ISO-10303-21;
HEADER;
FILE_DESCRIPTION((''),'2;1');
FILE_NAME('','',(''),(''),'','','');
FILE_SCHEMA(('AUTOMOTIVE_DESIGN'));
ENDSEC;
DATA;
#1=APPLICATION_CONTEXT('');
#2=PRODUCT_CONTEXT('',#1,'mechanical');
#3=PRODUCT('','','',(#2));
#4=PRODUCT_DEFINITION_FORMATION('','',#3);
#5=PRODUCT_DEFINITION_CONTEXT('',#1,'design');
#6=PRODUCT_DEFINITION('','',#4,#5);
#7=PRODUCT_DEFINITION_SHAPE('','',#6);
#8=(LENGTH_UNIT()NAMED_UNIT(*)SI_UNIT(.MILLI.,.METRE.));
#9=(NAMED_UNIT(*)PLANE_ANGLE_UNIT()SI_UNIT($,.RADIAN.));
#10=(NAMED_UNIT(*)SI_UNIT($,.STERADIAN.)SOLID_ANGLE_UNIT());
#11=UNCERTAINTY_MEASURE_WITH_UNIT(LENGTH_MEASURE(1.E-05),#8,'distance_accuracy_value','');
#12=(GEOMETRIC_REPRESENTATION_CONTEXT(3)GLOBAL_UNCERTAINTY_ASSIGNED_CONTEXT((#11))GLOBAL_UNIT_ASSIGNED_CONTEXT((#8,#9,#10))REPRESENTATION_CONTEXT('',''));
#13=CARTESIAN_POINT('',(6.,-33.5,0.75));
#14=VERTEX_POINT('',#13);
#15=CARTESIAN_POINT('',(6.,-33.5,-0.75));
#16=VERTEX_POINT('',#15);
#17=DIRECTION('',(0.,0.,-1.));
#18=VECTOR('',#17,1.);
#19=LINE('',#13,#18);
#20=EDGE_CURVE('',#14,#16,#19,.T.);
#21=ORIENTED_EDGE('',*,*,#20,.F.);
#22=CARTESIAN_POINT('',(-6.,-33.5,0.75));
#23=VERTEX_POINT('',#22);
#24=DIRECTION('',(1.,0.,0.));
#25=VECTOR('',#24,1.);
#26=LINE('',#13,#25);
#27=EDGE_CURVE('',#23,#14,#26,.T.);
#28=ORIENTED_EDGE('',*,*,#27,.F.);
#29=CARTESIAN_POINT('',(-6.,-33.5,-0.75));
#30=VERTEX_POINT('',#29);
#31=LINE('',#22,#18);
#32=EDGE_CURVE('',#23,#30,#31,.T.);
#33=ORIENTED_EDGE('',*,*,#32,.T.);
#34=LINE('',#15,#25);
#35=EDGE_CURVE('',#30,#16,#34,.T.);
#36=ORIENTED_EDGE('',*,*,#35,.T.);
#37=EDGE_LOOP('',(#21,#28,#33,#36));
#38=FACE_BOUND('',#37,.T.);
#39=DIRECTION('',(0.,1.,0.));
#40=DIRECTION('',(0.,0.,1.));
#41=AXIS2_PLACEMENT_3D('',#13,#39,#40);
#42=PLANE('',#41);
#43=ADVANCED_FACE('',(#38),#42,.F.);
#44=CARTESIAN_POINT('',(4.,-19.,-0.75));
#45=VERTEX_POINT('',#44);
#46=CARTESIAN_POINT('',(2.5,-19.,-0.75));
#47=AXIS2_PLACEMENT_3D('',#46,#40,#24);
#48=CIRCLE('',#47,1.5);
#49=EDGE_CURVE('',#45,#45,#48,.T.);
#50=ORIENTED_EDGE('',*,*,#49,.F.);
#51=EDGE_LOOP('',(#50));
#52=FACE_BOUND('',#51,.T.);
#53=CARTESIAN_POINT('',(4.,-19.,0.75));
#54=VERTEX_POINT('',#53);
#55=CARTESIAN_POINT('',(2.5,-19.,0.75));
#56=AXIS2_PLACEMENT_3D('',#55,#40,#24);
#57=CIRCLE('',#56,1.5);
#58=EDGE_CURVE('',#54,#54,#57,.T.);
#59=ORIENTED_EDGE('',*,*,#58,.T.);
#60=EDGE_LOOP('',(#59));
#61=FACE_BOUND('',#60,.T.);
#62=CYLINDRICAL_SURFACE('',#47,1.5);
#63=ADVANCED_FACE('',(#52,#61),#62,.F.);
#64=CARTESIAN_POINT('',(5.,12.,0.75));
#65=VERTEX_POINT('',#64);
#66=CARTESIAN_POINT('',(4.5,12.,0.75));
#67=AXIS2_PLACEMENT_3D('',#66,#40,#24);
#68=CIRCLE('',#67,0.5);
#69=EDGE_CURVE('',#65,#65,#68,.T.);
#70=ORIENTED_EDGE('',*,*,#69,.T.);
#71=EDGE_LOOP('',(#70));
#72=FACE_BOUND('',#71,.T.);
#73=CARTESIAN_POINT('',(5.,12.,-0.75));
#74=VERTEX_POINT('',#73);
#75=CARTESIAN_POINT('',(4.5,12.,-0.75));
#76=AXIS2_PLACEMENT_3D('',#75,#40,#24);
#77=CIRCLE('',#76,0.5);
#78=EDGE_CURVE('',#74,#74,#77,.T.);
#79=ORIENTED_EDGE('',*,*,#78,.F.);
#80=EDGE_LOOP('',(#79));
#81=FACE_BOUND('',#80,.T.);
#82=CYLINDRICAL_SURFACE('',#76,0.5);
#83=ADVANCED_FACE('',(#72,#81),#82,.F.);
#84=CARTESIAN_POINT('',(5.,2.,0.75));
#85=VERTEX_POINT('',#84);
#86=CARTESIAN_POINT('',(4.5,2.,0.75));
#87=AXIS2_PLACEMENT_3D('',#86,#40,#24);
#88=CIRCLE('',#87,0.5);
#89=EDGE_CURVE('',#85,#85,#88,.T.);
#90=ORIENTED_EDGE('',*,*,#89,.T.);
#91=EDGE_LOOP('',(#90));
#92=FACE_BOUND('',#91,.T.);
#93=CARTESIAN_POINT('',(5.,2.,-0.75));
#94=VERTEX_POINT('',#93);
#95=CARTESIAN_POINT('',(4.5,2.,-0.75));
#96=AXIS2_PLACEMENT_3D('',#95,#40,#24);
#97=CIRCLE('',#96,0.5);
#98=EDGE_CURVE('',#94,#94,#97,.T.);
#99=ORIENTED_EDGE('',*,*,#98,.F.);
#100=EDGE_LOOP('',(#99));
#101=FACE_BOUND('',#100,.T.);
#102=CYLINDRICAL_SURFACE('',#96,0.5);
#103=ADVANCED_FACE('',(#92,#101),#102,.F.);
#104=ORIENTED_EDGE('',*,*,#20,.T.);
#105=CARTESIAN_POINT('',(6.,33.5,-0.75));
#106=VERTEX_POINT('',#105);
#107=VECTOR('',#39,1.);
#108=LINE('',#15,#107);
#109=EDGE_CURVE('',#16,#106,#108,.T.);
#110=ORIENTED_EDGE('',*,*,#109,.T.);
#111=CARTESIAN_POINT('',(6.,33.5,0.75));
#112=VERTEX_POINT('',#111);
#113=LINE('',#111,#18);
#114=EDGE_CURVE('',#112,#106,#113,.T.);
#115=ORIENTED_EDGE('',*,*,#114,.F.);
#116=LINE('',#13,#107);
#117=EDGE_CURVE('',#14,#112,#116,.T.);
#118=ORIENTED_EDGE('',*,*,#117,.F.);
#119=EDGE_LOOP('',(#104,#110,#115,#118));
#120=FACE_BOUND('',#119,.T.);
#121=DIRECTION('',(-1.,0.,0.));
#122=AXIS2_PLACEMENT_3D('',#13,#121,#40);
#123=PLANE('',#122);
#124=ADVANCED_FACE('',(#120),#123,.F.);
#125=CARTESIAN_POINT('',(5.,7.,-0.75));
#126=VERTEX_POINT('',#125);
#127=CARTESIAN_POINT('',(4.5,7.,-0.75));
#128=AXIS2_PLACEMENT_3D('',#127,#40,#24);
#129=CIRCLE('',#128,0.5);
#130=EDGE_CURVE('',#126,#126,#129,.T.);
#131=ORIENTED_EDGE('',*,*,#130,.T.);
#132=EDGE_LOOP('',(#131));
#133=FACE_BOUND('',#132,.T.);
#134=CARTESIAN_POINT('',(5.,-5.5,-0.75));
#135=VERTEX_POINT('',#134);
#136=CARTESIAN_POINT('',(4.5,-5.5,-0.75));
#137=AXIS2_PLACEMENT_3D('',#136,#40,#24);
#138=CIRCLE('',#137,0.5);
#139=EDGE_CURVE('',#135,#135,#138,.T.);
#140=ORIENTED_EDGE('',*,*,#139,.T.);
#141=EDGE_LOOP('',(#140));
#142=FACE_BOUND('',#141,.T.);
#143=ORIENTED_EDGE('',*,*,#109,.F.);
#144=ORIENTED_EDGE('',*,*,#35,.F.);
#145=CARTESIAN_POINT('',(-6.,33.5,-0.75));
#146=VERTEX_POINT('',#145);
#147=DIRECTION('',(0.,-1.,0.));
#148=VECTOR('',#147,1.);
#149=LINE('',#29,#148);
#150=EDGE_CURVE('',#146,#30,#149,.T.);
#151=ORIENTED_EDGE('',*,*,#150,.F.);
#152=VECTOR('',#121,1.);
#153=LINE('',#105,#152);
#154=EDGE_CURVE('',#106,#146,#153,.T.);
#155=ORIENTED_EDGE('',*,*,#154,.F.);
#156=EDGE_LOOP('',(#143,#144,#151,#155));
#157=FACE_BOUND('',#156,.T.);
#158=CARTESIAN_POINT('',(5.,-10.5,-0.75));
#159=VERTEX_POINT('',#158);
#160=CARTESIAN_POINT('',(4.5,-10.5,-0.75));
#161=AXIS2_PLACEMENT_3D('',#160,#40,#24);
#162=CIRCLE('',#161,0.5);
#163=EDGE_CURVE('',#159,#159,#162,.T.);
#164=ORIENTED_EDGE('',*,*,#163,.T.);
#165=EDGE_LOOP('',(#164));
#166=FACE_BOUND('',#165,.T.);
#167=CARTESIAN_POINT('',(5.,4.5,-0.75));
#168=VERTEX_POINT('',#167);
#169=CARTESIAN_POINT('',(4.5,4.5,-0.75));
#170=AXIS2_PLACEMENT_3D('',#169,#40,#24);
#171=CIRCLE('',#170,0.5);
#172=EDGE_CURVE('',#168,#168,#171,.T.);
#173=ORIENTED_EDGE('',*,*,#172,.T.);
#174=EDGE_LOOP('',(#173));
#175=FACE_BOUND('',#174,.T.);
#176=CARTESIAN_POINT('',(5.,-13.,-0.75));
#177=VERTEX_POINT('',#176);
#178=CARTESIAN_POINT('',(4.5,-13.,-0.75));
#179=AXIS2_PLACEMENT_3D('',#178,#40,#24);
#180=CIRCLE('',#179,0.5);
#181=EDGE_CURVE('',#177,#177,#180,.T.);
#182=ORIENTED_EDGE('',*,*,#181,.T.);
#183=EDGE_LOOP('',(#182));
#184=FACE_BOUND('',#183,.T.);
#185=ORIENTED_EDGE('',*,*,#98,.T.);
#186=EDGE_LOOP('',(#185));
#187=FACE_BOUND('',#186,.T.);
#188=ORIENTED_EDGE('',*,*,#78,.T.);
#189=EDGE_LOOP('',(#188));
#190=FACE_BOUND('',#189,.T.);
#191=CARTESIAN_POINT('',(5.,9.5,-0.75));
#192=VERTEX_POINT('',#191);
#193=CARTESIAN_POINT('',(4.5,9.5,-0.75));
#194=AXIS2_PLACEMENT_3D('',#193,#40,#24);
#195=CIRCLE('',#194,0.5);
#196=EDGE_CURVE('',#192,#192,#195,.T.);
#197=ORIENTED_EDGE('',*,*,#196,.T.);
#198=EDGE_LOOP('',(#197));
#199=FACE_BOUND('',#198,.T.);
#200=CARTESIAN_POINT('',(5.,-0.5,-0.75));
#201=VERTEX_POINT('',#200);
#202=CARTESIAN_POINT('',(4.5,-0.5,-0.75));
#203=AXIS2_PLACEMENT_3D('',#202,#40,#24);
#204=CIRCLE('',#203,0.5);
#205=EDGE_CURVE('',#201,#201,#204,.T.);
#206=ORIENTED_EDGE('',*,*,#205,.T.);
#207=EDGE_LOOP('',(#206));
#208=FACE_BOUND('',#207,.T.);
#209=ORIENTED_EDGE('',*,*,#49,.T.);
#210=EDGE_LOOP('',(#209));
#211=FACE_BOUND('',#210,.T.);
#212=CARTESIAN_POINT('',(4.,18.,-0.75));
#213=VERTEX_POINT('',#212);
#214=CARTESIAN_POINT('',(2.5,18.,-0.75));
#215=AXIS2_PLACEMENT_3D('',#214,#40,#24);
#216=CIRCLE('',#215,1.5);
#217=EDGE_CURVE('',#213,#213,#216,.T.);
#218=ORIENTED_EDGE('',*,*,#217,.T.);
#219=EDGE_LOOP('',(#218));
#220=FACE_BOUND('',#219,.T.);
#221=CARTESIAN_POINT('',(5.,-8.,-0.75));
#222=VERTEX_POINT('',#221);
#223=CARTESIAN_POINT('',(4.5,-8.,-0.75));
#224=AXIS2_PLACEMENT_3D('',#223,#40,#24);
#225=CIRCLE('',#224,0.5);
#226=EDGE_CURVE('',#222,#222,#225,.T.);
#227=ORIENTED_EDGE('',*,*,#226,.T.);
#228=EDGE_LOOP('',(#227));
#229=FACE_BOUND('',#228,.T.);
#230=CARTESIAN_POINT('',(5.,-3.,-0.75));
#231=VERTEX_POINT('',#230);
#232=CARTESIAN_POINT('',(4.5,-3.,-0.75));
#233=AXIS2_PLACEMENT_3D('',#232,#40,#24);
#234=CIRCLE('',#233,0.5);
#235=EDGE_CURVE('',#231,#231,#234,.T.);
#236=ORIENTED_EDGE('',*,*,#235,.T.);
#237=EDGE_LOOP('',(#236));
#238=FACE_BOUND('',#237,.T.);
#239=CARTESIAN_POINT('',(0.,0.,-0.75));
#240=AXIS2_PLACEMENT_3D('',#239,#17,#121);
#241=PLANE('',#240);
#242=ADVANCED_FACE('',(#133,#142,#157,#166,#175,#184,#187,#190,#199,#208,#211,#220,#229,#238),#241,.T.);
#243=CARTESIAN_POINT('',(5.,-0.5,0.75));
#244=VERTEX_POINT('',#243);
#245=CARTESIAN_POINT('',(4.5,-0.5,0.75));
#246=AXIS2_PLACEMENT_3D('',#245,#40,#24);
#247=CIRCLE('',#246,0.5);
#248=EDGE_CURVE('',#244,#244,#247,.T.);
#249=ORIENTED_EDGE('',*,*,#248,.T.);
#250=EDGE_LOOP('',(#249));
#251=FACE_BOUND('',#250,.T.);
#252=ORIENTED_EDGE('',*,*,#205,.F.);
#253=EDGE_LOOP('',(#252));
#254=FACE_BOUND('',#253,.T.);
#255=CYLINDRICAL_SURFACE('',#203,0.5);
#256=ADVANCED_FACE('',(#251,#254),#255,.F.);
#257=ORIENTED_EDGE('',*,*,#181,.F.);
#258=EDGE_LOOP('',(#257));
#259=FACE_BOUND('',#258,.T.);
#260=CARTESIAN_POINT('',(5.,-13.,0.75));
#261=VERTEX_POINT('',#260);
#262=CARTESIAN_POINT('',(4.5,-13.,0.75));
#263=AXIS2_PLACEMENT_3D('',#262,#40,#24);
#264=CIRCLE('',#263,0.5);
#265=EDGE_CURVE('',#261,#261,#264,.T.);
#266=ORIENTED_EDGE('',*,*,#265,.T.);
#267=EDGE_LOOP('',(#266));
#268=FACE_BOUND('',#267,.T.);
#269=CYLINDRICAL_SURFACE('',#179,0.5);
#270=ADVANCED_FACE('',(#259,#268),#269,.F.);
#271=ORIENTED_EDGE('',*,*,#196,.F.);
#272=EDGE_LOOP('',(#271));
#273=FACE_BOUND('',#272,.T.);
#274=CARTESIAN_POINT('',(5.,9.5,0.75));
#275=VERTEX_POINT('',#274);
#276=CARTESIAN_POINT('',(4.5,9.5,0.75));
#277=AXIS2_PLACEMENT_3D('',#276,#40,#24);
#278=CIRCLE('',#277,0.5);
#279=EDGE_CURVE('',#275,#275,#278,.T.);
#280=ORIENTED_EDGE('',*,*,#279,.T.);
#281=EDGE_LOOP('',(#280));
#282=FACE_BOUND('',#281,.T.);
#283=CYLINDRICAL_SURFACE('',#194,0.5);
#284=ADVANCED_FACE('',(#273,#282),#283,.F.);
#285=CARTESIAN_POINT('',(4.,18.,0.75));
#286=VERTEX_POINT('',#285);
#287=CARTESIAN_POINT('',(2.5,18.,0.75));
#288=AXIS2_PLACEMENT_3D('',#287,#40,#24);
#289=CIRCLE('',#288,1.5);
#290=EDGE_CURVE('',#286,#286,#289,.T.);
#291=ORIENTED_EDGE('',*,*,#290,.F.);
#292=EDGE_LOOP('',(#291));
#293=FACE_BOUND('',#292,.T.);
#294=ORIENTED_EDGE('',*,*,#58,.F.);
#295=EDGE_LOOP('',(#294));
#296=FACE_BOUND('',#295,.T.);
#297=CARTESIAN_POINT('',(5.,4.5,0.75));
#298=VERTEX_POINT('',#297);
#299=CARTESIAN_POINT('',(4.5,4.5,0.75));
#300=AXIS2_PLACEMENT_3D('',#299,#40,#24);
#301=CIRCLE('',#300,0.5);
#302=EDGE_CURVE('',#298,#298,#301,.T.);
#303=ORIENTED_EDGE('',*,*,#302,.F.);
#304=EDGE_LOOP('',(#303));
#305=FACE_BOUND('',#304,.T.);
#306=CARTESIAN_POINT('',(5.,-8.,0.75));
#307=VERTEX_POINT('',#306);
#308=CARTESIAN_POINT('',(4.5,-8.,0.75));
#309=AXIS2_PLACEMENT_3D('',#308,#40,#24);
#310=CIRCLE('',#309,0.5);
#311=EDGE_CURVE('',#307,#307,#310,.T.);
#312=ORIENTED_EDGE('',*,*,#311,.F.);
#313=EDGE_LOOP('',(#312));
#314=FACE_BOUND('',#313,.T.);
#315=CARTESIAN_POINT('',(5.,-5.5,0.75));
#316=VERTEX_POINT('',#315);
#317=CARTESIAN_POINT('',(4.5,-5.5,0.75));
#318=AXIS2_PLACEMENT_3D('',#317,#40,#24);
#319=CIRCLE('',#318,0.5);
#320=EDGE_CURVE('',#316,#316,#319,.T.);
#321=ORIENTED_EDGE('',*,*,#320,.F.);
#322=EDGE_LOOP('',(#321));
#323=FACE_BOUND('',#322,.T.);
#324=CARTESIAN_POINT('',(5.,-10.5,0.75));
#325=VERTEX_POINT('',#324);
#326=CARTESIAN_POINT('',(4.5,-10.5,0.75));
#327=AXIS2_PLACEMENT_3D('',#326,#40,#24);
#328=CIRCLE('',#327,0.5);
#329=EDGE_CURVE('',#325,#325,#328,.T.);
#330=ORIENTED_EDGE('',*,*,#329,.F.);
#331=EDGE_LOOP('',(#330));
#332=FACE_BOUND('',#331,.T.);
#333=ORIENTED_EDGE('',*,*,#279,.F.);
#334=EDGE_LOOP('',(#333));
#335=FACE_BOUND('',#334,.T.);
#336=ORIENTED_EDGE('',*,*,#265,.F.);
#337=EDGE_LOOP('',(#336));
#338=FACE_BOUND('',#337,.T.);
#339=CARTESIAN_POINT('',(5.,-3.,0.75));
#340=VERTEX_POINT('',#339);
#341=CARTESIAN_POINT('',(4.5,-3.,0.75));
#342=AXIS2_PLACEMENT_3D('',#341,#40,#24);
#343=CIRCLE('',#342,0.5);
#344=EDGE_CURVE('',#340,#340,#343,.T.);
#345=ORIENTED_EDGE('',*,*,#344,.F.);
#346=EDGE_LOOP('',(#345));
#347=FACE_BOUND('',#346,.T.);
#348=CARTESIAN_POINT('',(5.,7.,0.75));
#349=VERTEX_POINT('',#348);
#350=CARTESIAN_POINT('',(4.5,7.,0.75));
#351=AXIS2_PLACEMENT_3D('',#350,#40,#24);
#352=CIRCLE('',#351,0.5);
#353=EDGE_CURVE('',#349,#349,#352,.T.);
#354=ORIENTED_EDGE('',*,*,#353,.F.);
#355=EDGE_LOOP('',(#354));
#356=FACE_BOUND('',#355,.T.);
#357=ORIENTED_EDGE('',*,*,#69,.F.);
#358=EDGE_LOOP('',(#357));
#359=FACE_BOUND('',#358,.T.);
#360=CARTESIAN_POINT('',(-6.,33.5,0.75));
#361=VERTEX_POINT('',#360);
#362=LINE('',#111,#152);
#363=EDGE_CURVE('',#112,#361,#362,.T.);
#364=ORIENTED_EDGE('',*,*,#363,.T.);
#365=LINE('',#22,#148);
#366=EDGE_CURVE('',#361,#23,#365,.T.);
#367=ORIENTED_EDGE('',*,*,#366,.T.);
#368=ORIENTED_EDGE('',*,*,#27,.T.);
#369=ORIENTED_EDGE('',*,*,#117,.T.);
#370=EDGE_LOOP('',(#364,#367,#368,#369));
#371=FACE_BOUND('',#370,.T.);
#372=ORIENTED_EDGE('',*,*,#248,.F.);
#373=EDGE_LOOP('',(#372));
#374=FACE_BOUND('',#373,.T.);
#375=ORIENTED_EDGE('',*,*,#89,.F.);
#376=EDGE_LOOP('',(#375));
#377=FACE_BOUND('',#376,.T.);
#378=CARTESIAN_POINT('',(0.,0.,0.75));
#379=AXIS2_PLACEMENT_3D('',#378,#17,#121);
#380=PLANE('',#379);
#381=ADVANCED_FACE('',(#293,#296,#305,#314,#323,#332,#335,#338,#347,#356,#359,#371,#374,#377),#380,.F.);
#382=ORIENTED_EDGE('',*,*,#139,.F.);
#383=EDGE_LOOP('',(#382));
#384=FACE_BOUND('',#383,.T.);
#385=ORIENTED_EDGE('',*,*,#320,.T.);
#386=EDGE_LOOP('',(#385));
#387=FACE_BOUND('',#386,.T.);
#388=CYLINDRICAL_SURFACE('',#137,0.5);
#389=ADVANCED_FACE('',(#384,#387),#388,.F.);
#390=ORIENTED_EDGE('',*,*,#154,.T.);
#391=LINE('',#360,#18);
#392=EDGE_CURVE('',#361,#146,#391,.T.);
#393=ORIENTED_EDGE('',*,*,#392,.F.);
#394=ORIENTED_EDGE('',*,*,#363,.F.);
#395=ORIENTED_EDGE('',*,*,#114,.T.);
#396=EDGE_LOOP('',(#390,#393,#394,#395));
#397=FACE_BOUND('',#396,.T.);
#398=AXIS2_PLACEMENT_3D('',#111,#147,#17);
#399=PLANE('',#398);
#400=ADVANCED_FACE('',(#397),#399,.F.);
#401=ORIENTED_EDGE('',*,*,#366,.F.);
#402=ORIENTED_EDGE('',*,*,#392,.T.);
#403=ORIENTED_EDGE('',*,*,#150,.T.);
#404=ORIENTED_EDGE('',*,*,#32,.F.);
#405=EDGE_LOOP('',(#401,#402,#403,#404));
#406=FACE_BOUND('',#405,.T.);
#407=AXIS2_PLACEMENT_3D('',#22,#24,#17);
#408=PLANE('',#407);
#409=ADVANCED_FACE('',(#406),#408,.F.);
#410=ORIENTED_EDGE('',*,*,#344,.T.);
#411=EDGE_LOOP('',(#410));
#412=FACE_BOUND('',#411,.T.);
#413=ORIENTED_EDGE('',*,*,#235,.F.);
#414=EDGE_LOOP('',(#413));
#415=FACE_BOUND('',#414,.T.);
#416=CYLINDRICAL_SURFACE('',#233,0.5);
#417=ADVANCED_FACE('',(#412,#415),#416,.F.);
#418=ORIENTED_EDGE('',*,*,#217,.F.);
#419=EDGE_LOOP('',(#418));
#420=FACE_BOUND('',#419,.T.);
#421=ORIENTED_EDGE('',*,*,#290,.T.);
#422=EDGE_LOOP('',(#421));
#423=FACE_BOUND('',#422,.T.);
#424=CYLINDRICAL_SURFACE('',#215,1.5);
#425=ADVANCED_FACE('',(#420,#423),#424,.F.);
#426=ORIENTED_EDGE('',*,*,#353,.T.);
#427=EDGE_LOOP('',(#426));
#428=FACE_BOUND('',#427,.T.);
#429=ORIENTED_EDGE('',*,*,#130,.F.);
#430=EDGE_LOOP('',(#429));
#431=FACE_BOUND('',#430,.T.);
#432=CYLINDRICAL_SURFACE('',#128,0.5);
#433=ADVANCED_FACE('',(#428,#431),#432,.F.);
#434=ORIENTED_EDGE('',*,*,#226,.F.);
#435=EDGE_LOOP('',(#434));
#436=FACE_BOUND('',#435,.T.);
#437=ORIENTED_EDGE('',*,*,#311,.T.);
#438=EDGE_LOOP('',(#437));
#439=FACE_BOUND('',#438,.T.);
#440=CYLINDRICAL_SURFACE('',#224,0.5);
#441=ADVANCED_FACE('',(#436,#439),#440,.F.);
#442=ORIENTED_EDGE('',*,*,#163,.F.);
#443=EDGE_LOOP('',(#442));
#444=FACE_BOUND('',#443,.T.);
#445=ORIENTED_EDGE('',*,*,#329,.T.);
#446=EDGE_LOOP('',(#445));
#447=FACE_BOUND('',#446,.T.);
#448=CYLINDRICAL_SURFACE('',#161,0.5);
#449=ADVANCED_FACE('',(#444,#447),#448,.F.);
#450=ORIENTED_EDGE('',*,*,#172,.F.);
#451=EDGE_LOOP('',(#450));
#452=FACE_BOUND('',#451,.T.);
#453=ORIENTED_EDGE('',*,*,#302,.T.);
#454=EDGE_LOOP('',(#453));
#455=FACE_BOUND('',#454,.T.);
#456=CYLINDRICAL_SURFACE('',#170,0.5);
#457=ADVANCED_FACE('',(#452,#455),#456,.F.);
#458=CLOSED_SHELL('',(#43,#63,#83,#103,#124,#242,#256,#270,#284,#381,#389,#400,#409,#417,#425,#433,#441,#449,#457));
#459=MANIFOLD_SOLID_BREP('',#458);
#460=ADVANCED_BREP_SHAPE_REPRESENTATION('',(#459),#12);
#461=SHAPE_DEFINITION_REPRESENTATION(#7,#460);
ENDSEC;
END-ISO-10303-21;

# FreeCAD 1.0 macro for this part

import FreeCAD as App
import Part
import Sketcher
from FreeCAD import Vector


def add_polygon(sketch, points):
    """Adds a closed chain of lines whose ends are joined by coincident constraints."""
    first, n = sketch.GeometryCount, len(points)
    for a, b in zip(points, points[1:] + points[:1]):
        sketch.addGeometry(Part.LineSegment(App.Vector(*a, 0), App.Vector(*b, 0)), False)
    for i in range(n):
        sketch.addConstraint(Sketcher.Constraint("Coincident", first + i, 2, first + (i + 1) % n, 1))

doc = App.newDocument("Part")
body = doc.addObject("PartDesign::Body", "Body")

# Sketch on XY plane
sketch1 = doc.addObject("Sketcher::SketchObject", "Sketch")
body.addObject(sketch1)
sketch1.AttachmentSupport = (doc.XY_Plane, [""])
sketch1.MapMode = "FlatFace"
add_polygon(sketch1, [(-6, -34), (6, -34), (6, 34), (-6, 34)])  # lines 0-3
sketch1.addConstraint([
    Sketcher.Constraint("Horizontal", 0),
    Sketcher.Constraint("Vertical", 1),
    Sketcher.Constraint("Horizontal", 2),
    Sketcher.Constraint("Vertical", 3),
    Sketcher.Constraint("Symmetric", 0, 2, 2, 2, -1, 1),
    Sketcher.Constraint("DistanceX", 0, 1, 0, 2, 12.0),
    Sketcher.Constraint("DistanceY", 1, 1, 1, 2, 67.0),
])
pad1 = doc.addObject("PartDesign::Pad", "Pad")
body.addObject(pad1)
pad1.Profile = sketch1
pad1.Length = 1.5
pad1.Midplane = True

# Sketch on XY plane
sketch2 = doc.addObject("Sketcher::SketchObject", "Sketch001")
body.addObject(sketch2)
sketch2.AttachmentSupport = (doc.XY_Plane, [""])
sketch2.MapMode = "FlatFace"
sketch2.AttachmentOffset = App.Placement(Vector(0, 0, 0.75), App.Rotation())
sketch2.addGeometry([
    Part.Circle(Vector(4.5, -13, 0), Vector(0, 0, 1), 0.5),  # 0
    Part.Circle(Vector(4.5, -10.5, 0), Vector(0, 0, 1), 0.5),  # 1
    Part.Circle(Vector(4.5, -8, 0), Vector(0, 0, 1), 0.5),  # 2
    Part.Circle(Vector(4.5, -5.5, 0), Vector(0, 0, 1), 0.5),  # 3
    Part.Circle(Vector(4.5, -3, 0), Vector(0, 0, 1), 0.5),  # 4
    Part.Circle(Vector(4.5, -0.5, 0), Vector(0, 0, 1), 0.5),  # 5
    Part.Circle(Vector(4.5, 2, 0), Vector(0, 0, 1), 0.5),  # 6
    Part.Circle(Vector(4.5, 4.5, 0), Vector(0, 0, 1), 0.5),  # 7
    Part.Circle(Vector(4.5, 7, 0), Vector(0, 0, 1), 0.5),  # 8
    Part.Circle(Vector(4.5, 9.5, 0), Vector(0, 0, 1), 0.5),  # 9
    Part.Circle(Vector(4.5, 12, 0), Vector(0, 0, 1), 0.5),  # 10
], False)
sketch2.addConstraint([
    Sketcher.Constraint("Equal", 0, 1),
    Sketcher.Constraint("Equal", 1, 2),
    Sketcher.Constraint("Equal", 2, 3),
    Sketcher.Constraint("Equal", 3, 4),
    Sketcher.Constraint("Equal", 4, 5),
    Sketcher.Constraint("Equal", 5, 6),
    Sketcher.Constraint("Equal", 6, 7),
    Sketcher.Constraint("Equal", 7, 8),
    Sketcher.Constraint("Equal", 8, 9),
    Sketcher.Constraint("Equal", 9, 10),
    Sketcher.Constraint("Vertical", 0, 3, 1, 3),
    Sketcher.Constraint("Vertical", 1, 3, 2, 3),
    Sketcher.Constraint("Vertical", 2, 3, 3, 3),
    Sketcher.Constraint("Vertical", 3, 3, 4, 3),
    Sketcher.Constraint("Vertical", 4, 3, 5, 3),
    Sketcher.Constraint("Vertical", 5, 3, 6, 3),
    Sketcher.Constraint("Vertical", 6, 3, 7, 3),
    Sketcher.Constraint("Vertical", 7, 3, 8, 3),
    Sketcher.Constraint("Vertical", 8, 3, 9, 3),
    Sketcher.Constraint("Vertical", 9, 3, 10, 3),
    Sketcher.Constraint("Diameter", 0, 1.0),
    Sketcher.Constraint("DistanceY", 0, 3, -1, 1, 13.0),
    Sketcher.Constraint("DistanceY", 2, 3, -1, 1, 8.0),
    Sketcher.Constraint("DistanceY", 4, 3, -1, 1, 3.0),
    Sketcher.Constraint("DistanceY", -1, 1, 6, 3, 2.0),
    Sketcher.Constraint("DistanceY", -1, 1, 8, 3, 7.0),
    Sketcher.Constraint("DistanceY", -1, 1, 10, 3, 12.0),
    Sketcher.Constraint("DistanceY", 1, 3, 3, 3, 5.0),
    Sketcher.Constraint("DistanceY", 3, 3, 5, 3, 5.0),
    Sketcher.Constraint("DistanceY", 5, 3, 7, 3, 5.0),
    Sketcher.Constraint("DistanceY", 7, 3, 9, 3, 5.0),
    Sketcher.Constraint("DistanceX", -1, 1, 0, 3, 4.5),
    Sketcher.Constraint("DistanceY", 1, 3, -1, 1, 10.5),
])
pocket1 = doc.addObject("PartDesign::Pocket", "Pocket")
body.addObject(pocket1)
pocket1.Profile = sketch2
pocket1.Length = 1.5

# Sketch on XY plane
sketch3 = doc.addObject("Sketcher::SketchObject", "Sketch002")
body.addObject(sketch3)
sketch3.AttachmentSupport = (doc.XY_Plane, [""])
sketch3.MapMode = "FlatFace"
sketch3.AttachmentOffset = App.Placement(Vector(0, 0, 0.75), App.Rotation())
sketch3.addGeometry([
    Part.Circle(Vector(2.5, -19, 0), Vector(0, 0, 1), 1.5),
    Part.Circle(Vector(2.5, 18, 0), Vector(0, 0, 1), 1.5),
], False)
sketch3.addConstraint([
    Sketcher.Constraint("Equal", 0, 1),
    Sketcher.Constraint("Vertical", 0, 3, 1, 3),
    Sketcher.Constraint("Diameter", 0, 3.0),
    Sketcher.Constraint("DistanceY", 0, 3, -1, 1, 19.0),
    Sketcher.Constraint("DistanceY", -1, 1, 1, 3, 18.0),
    Sketcher.Constraint("DistanceX", -1, 1, 0, 3, 2.5),
])
pocket2 = doc.addObject("PartDesign::Pocket", "Pocket001")
body.addObject(pocket2)
pocket2.Profile = sketch3
pocket2.Length = 1.5

doc.recompute()
